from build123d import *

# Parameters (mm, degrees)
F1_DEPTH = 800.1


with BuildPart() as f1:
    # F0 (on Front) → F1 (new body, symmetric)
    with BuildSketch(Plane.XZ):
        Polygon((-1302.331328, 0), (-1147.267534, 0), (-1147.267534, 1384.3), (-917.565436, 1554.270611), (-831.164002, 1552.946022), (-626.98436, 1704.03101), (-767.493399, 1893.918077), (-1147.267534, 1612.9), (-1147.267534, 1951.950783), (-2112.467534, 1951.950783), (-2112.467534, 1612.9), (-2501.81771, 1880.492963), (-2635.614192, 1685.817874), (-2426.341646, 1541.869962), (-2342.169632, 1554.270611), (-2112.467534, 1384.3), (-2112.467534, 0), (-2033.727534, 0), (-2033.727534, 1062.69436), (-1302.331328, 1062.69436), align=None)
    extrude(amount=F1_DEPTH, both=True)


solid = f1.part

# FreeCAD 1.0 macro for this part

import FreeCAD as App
import Part
import Sketcher
from FreeCAD import Vector
Q = App.Units.Quantity

doc = App.newDocument("Part")
body = doc.addObject("PartDesign::Body", "Body")

sketch1 = body.newObject("Sketcher::SketchObject", "Sketch")
sketch1.AttachmentSupport = (doc.getObject("XZ_Plane"), [""])
sketch1.MapMode = "FlatFace"
sketch1.addGeometry(Part.LineSegment(Vector(-1302.331328, 0, 0), Vector(-1147.267534, 0, 0)), False)
sketch1.addGeometry(Part.LineSegment(Vector(-1147.267534, 0, 0), Vector(-1147.267534, 1384.3, 0)), False)
sketch1.addGeometry(Part.LineSegment(Vector(-1147.267534, 1384.3, 0), Vector(-917.565436, 1554.270611, 0)), False)
sketch1.addGeometry(Part.LineSegment(Vector(-917.565436, 1554.270611, 0), Vector(-831.164002, 1552.946022, 0)), False)
sketch1.addGeometry(Part.LineSegment(Vector(-831.164002, 1552.946022, 0), Vector(-626.98436, 1704.03101, 0)), False)
sketch1.addGeometry(Part.LineSegment(Vector(-626.98436, 1704.03101, 0), Vector(-767.493399, 1893.918077, 0)), False)
sketch1.addGeometry(Part.LineSegment(Vector(-767.493399, 1893.918077, 0), Vector(-1147.267534, 1612.9, 0)), False)
sketch1.addGeometry(Part.LineSegment(Vector(-1147.267534, 1612.9, 0), Vector(-1147.267534, 1951.950783, 0)), False)
sketch1.addGeometry(Part.LineSegment(Vector(-1147.267534, 1951.950783, 0), Vector(-2112.467534, 1951.950783, 0)), False)
sketch1.addGeometry(Part.LineSegment(Vector(-2112.467534, 1951.950783, 0), Vector(-2112.467534, 1612.9, 0)), False)
sketch1.addGeometry(Part.LineSegment(Vector(-2112.467534, 1612.9, 0), Vector(-2501.81771, 1880.492963, 0)), False)
sketch1.addGeometry(Part.LineSegment(Vector(-2501.81771, 1880.492963, 0), Vector(-2635.614192, 1685.817874, 0)), False)
sketch1.addGeometry(Part.LineSegment(Vector(-2635.614192, 1685.817874, 0), Vector(-2426.341646, 1541.869962, 0)), False)
sketch1.addGeometry(Part.LineSegment(Vector(-2426.341646, 1541.869962, 0), Vector(-2342.169632, 1554.270611, 0)), False)
sketch1.addGeometry(Part.LineSegment(Vector(-2342.169632, 1554.270611, 0), Vector(-2112.467534, 1384.3, 0)), False)
sketch1.addGeometry(Part.LineSegment(Vector(-2112.467534, 1384.3, 0), Vector(-2112.467534, 0, 0)), False)
sketch1.addGeometry(Part.LineSegment(Vector(-2112.467534, 0, 0), Vector(-2033.727534, 0, 0)), False)
sketch1.addGeometry(Part.LineSegment(Vector(-2033.727534, 0, 0), Vector(-2033.727534, 1062.69436, 0)), False)
sketch1.addGeometry(Part.LineSegment(Vector(-2033.727534, 1062.69436, 0), Vector(-1302.331328, 1062.69436, 0)), False)
sketch1.addGeometry(Part.LineSegment(Vector(-1302.331328, 1062.69436, 0), Vector(-1302.331328, 0, 0)), False)
sketch1.addConstraint(Sketcher.Constraint("Coincident", 0, 2, 1, 1))
sketch1.addConstraint(Sketcher.Constraint("Coincident", 1, 2, 2, 1))
sketch1.addConstraint(Sketcher.Constraint("Coincident", 2, 2, 3, 1))
sketch1.addConstraint(Sketcher.Constraint("Coincident", 3, 2, 4, 1))
sketch1.addConstraint(Sketcher.Constraint("Coincident", 4, 2, 5, 1))
sketch1.addConstraint(Sketcher.Constraint("Coincident", 5, 2, 6, 1))
sketch1.addConstraint(Sketcher.Constraint("Coincident", 6, 2, 7, 1))
sketch1.addConstraint(Sketcher.Constraint("Coincident", 7, 2, 8, 1))
sketch1.addConstraint(Sketcher.Constraint("Coincident", 8, 2, 9, 1))
sketch1.addConstraint(Sketcher.Constraint("Coincident", 9, 2, 10, 1))
sketch1.addConstraint(Sketcher.Constraint("Coincident", 10, 2, 11, 1))
sketch1.addConstraint(Sketcher.Constraint("Coincident", 11, 2, 12, 1))
sketch1.addConstraint(Sketcher.Constraint("Coincident", 12, 2, 13, 1))
sketch1.addConstraint(Sketcher.Constraint("Coincident", 13, 2, 14, 1))
sketch1.addConstraint(Sketcher.Constraint("Coincident", 14, 2, 15, 1))
sketch1.addConstraint(Sketcher.Constraint("Coincident", 15, 2, 16, 1))
sketch1.addConstraint(Sketcher.Constraint("Coincident", 16, 2, 17, 1))
sketch1.addConstraint(Sketcher.Constraint("Coincident", 17, 2, 18, 1))
sketch1.addConstraint(Sketcher.Constraint("Coincident", 18, 2, 19, 1))
sketch1.addConstraint(Sketcher.Constraint("Coincident", 19, 2, 0, 1))
sketch1.addConstraint(Sketcher.Constraint("Horizontal", 0))
sketch1.addConstraint(Sketcher.Constraint("Vertical", 1))
sketch1.addConstraint(Sketcher.Constraint("Vertical", 7))
sketch1.addConstraint(Sketcher.Constraint("Horizontal", 8))
sketch1.addConstraint(Sketcher.Constraint("Vertical", 9))
sketch1.addConstraint(Sketcher.Constraint("Vertical", 15))
sketch1.addConstraint(Sketcher.Constraint("Horizontal", 16))
sketch1.addConstraint(Sketcher.Constraint("Vertical", 17))
sketch1.addConstraint(Sketcher.Constraint("Horizontal", 18))
sketch1.addConstraint(Sketcher.Constraint("Vertical", 19))
sketch1.addConstraint(Sketcher.Constraint("PointOnObject", 0, 2, -1))
sketch1.addConstraint(Sketcher.Constraint("PointOnObject", 15, 2, -1))
sketch1.addConstraint(Sketcher.Constraint("Parallel", 2, 4))
sketch1.addConstraint(Sketcher.Constraint("Perpendicular", 4, 5))
sketch1.addConstraint(Sketcher.Constraint("Perpendicular", 5, 6))
sketch1.addConstraint(Sketcher.Constraint("Perpendicular", 10, 11))
sketch1.addConstraint(Sketcher.Constraint("Horizontal", 6, 2, 9, 2))
sketch1.addConstraint(Sketcher.Constraint("Horizontal", 2, 2, 13, 2))
sketch1.addConstraint(Sketcher.Constraint("Horizontal", 1, 2, 14, 2))
sketch1.addConstraint(Sketcher.Constraint("Vertical", 1, 2, 6, 2))
sketch1.addConstraint(Sketcher.Constraint("Vertical", 9, 2, 14, 2))
sketch1.addConstraint(Sketcher.Constraint("Equal", 6, 10))
sketch1.addConstraint(Sketcher.Constraint("Equal", 5, 11))
sketch1.addConstraint(Sketcher.Constraint("Equal", 4, 12))
sketch1.addConstraint(Sketcher.Constraint("Equal", 2, 14))
sketch1.addConstraint(Sketcher.Constraint("DistanceX", 8, 2, 8, 1, Q("38 in")))
sketch1.addConstraint(Sketcher.Constraint("Distance", 4, Q("10 in")))
sketch1.addConstraint(Sketcher.Constraint("DistanceX", 16, 1, 16, 2, Q("3.1 in")))
sketch1.addConstraint(Sketcher.Constraint("DistanceY", 1, 1, 1, 2, Q("54.5 in")))
sketch1.addConstraint(Sketcher.Constraint("DistanceY", 1, 2, 6, 2, Q("9 in")))
sketch1.addConstraint(Sketcher.Constraint("Distance", 5, Q("9.3 in")))
sketch1.addConstraint(Sketcher.Constraint("Distance", 6, Q("18.6 in")))
sketch1.addConstraint(Sketcher.Constraint("Angle", 2, Q("36.5 deg")))
sketch1.addConstraint(Sketcher.Constraint("Angle", 10, Q("145.5 deg")))
sketch1.addConstraint(Sketcher.Constraint("Distance", 2, Q("11.25 in")))
sketch1.addConstraint(Sketcher.Constraint("DistanceY", 10, 2, 8, 2, Q("2.8133 in")))
sketch1.addConstraint(Sketcher.Constraint("DistanceY", 17, 1, 17, 2, 1062.69436))
sketch1.addConstraint(Sketcher.Constraint("DistanceX", 3, 2, -1, 1, 831.164002))
sketch1.addConstraint(Sketcher.Constraint("DistanceY", 12, 2, 10, 2, 338.623001))
sketch1.addConstraint(Sketcher.Constraint("DistanceX", 0, 1, 0, 2, 155.063794))
pad1 = body.newObject("PartDesign::Pad", "Pad")
pad1.Profile = sketch1
pad1.Length = Q("63 in")
pad1.Midplane = True

doc.recompute()
